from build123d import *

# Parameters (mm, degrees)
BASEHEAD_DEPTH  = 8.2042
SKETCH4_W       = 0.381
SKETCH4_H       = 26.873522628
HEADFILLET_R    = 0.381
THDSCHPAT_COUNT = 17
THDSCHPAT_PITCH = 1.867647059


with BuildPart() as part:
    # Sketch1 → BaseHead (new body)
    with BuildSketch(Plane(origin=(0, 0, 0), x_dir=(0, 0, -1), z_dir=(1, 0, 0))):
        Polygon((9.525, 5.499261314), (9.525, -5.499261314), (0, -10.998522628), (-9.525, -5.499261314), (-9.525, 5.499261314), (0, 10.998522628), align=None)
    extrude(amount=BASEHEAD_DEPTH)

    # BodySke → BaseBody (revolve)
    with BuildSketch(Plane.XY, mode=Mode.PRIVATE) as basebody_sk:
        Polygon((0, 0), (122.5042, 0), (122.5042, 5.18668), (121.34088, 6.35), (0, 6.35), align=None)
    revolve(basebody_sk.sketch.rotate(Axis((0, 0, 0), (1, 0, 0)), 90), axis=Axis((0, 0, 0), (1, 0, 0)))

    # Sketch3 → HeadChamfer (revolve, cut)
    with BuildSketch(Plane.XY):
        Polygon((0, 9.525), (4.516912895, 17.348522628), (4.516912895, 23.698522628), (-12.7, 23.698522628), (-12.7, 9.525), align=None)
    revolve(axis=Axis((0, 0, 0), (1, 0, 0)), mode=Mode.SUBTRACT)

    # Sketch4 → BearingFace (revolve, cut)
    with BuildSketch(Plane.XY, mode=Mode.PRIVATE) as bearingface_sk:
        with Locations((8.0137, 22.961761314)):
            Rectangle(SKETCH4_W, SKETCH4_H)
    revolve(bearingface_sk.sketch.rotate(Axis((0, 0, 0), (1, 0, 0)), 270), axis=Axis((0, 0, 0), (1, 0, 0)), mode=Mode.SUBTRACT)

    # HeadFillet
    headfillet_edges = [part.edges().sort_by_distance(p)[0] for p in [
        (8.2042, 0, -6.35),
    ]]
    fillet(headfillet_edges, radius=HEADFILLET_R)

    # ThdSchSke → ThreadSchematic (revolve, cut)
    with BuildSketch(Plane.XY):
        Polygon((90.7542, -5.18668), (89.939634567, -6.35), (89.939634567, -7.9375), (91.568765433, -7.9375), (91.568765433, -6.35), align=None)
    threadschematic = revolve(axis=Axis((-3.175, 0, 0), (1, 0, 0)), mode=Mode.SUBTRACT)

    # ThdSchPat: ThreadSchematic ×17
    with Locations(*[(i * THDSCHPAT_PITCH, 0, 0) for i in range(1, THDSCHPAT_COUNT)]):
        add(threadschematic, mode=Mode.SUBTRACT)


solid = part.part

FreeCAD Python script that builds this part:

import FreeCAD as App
import Part
import Sketcher
from FreeCAD import Vector
Q = App.Units.Quantity


def edges_at(feature, points):
    """Names of the edges that pass closest to the given points."""
    edges = feature.Shape.Edges
    near = lambda p: min(range(len(edges)), key=lambda i: edges[i].distToShape(Part.Vertex(*p))[0])
    return sorted({f"Edge{near(p) + 1}" for p in points})

doc = App.newDocument("Part")
body = doc.addObject("PartDesign::Body", "Body")

# Sketch on YZ plane
sketch1 = doc.addObject("Sketcher::SketchObject", "Sketch")
body.addObject(sketch1)
sketch1.AttachmentSupport = (doc.YZ_Plane, [""])
sketch1.MapMode = "FlatFace"
sketch1.addGeometry([
    Part.LineSegment(Vector(-5, -10, 0), Vector(5, -10, 0)),  # 0
    Part.LineSegment(Vector(5, -10, 0), Vector(11, 0, 0)),  # 1
    Part.LineSegment(Vector(11, 0, 0), Vector(5, 10, 0)),  # 2
    Part.LineSegment(Vector(5, 10, 0), Vector(-5, 10, 0)),  # 3
    Part.LineSegment(Vector(-5, 10, 0), Vector(-11, 0, 0)),  # 4
    Part.LineSegment(Vector(-11, 0, 0), Vector(-5, -10, 0)),  # 5
], False)
sketch1.addConstraint([
    Sketcher.Constraint("Coincident", 0, 2, 1, 1),
    Sketcher.Constraint("Coincident", 1, 2, 2, 1),
    Sketcher.Constraint("Coincident", 2, 2, 3, 1),
    Sketcher.Constraint("Coincident", 3, 2, 4, 1),
    Sketcher.Constraint("Coincident", 4, 2, 5, 1),
    Sketcher.Constraint("Coincident", 5, 2, 0, 1),
    Sketcher.Constraint("Horizontal", 0),
    Sketcher.Constraint("Horizontal", 3),
    Sketcher.Constraint("Symmetric", 0, 2, 3, 2, -1, 1),
    Sketcher.Constraint("Symmetric", 1, 2, 4, 2, -1, 1),
    Sketcher.Constraint("PointOnObject", 1, 2, -1),
    Sketcher.Constraint("Parallel", 2, 5),
    Sketcher.Constraint("Vertical", 0, 2, 2, 2),
    Sketcher.Constraint("Angle", 1, Q("60 deg")),
    Sketcher.Constraint("DistanceY", 0, 2, 2, 2, Q("0.75 in")),
    Sketcher.Constraint("DistanceX", 0, 1, 0, 2, 10.998523),
])
pad1 = doc.addObject("PartDesign::Pad", "Pad")
body.addObject(pad1)
pad1.Profile = sketch1
pad1.Length = Q("0.323 in")

# Sketch on XY plane
sketch2 = doc.addObject("Sketcher::SketchObject", "Sketch001")
body.addObject(sketch2)
sketch2.AttachmentSupport = (doc.XY_Plane, [""])
sketch2.MapMode = "FlatFace"
sketch2.addGeometry([
    Part.LineSegment(Vector(0, 0, 0), Vector(122.5, 0, 0)),  # 0
    Part.LineSegment(Vector(122.5, 0, 0), Vector(122.5, 5.2, 0)),  # 1
    Part.LineSegment(Vector(122.5, 5.2, 0), Vector(121.3, 6.3, 0)),  # 2
    Part.LineSegment(Vector(121.3, 6.3, 0), Vector(0, 6.3, 0)),  # 3
    Part.LineSegment(Vector(0, 6.3, 0), Vector(0, 0, 0)),  # 4
], False)
sketch2.addConstraint([
    Sketcher.Constraint("Coincident", 0, 2, 1, 1),
    Sketcher.Constraint("Coincident", 1, 2, 2, 1),
    Sketcher.Constraint("Coincident", 2, 2, 3, 1),
    Sketcher.Constraint("Coincident", 3, 2, 4, 1),
    Sketcher.Constraint("Coincident", 4, 2, 0, 1),
    Sketcher.Constraint("Horizontal", 0),
    Sketcher.Constraint("Vertical", 1),
    Sketcher.Constraint("Horizontal", 3),
    Sketcher.Constraint("Vertical", 4),
    Sketcher.Constraint("Coincident", 4, 2, -1, 1),
    Sketcher.Constraint("Angle", 2, Q("135 deg")),
    Sketcher.Constraint("DistanceY", 4, 2, 4, 1, Q("0.25 in")),
    Sketcher.Constraint("DistanceX", 0, 1, 0, 2, Q("4.823 in")),
    Sketcher.Constraint("DistanceX", 3, 2, 3, 1, Q("4.7772 in")),
])
revolution = doc.addObject("PartDesign::Revolution", "Revolution")
body.addObject(revolution)
revolution.Profile = sketch2
revolution.ReferenceAxis = (sketch2, ["H_Axis"])
revolution.Angle = 360

# Sketch on XY plane
sketch3 = doc.addObject("Sketcher::SketchObject", "Sketch002")
body.addObject(sketch3)
sketch3.AttachmentSupport = (doc.XY_Plane, [""])
sketch3.MapMode = "FlatFace"
sketch3.addGeometry([
    Part.LineSegment(Vector(0, 10, 0), Vector(5, 17, 0)),  # 0
    Part.LineSegment(Vector(5, 17, 0), Vector(5, 24, 0)),  # 1
    Part.LineSegment(Vector(5, 24, 0), Vector(-13, 24, 0)),  # 2
    Part.LineSegment(Vector(-13, 24, 0), Vector(-13, 10, 0)),  # 3
    Part.LineSegment(Vector(-13, 10, 0), Vector(0, 10, 0)),  # 4
], False)
sketch3.addConstraint([
    Sketcher.Constraint("Coincident", 0, 2, 1, 1),
    Sketcher.Constraint("Coincident", 1, 2, 2, 1),
    Sketcher.Constraint("Coincident", 2, 2, 3, 1),
    Sketcher.Constraint("Coincident", 3, 2, 4, 1),
    Sketcher.Constraint("Coincident", 4, 2, 0, 1),
    Sketcher.Constraint("Vertical", 1),
    Sketcher.Constraint("Horizontal", 2),
    Sketcher.Constraint("Vertical", 3),
    Sketcher.Constraint("Horizontal", 4),
    Sketcher.Constraint("PointOnObject", 4, 2, -2),
    Sketcher.Constraint("DistanceX", 4, 1, 4, 2, Q("0.5 in")),
    Sketcher.Constraint("Angle", 0, Q("60 deg")),
    Sketcher.Constraint("DistanceY", 1, 1, 1, 2, Q("0.25 in")),
    Sketcher.Constraint("DistanceY", -1, 1, 3, 2, Q("0.375 in")),
    Sketcher.Constraint("DistanceX", 2, 2, 2, 1, 17.216913),
])
groove = doc.addObject("PartDesign::Groove", "Groove")
body.addObject(groove)
groove.Profile = sketch3
groove.ReferenceAxis = (sketch3, ["H_Axis"])
groove.Angle = 360

# Sketch on XY plane
sketch4 = doc.addObject("Sketcher::SketchObject", "Sketch003")
body.addObject(sketch4)
sketch4.AttachmentSupport = (doc.XY_Plane, [""])
sketch4.MapMode = "FlatFace"
sketch4.addGeometry([
    Part.LineSegment(Vector(7.82, 36.4, 0), Vector(7.82, 9.53, 0)),
    Part.LineSegment(Vector(7.82, 9.53, 0), Vector(8.2, 9.53, 0)),
    Part.LineSegment(Vector(8.2, 9.53, 0), Vector(8.2, 36.4, 0)),
    Part.LineSegment(Vector(8.2, 36.4, 0), Vector(7.82, 36.4, 0)),
], False)
sketch4.addConstraint([
    Sketcher.Constraint("Coincident", 0, 2, 1, 1),
    Sketcher.Constraint("Coincident", 1, 2, 2, 1),
    Sketcher.Constraint("Coincident", 2, 2, 3, 1),
    Sketcher.Constraint("Coincident", 3, 2, 0, 1),
    Sketcher.Constraint("Vertical", 0),
    Sketcher.Constraint("Horizontal", 1),
    Sketcher.Constraint("Vertical", 2),
    Sketcher.Constraint("Horizontal", 3),
    Sketcher.Constraint("DistanceX", 1, 1, 1, 2, Q("0.015 in")),
    Sketcher.Constraint("DistanceX", -1, 1, 0, 2, Q("0.308 in")),
    Sketcher.Constraint("DistanceY", -1, 1, 0, 2, Q("0.375 in")),
    Sketcher.Constraint("DistanceY", 0, 2, 0, 1, 26.873523),
])
groove2 = doc.addObject("PartDesign::Groove", "Groove001")
body.addObject(groove2)
groove2.Profile = sketch4
groove2.ReferenceAxis = (sketch4, ["H_Axis"])
groove2.Angle = 360
doc.recompute()

fillet = doc.addObject("PartDesign::Fillet", "Fillet")
body.addObject(fillet)
fillet.Base = (groove2, edges_at(groove2, [(8.204, 0, -6.35)]))
fillet.Radius = Q("0.015 in")

# Sketch on XY plane
sketch5 = doc.addObject("Sketcher::SketchObject", "Sketch004")
body.addObject(sketch5)
sketch5.AttachmentSupport = (doc.XY_Plane, [""])
sketch5.MapMode = "FlatFace"
sketch5.addGeometry([
    Part.LineSegment(Vector(90.8, -5.2, 0), Vector(89.9, -6.3, 0)),  # 0
    Part.LineSegment(Vector(89.9, -6.3, 0), Vector(89.9, -7.9, 0)),  # 1
    Part.LineSegment(Vector(89.9, -7.9, 0), Vector(91.6, -7.9, 0)),  # 2
    Part.LineSegment(Vector(91.6, -7.9, 0), Vector(91.6, -6.3, 0)),  # 3
    Part.LineSegment(Vector(91.6, -6.3, 0), Vector(90.8, -5.2, 0)),  # 4
], False)
sketch5.addConstraint([
    Sketcher.Constraint("Coincident", 0, 2, 1, 1),
    Sketcher.Constraint("Coincident", 1, 2, 2, 1),
    Sketcher.Constraint("Coincident", 2, 2, 3, 1),
    Sketcher.Constraint("Coincident", 3, 2, 4, 1),
    Sketcher.Constraint("Coincident", 4, 2, 0, 1),
    Sketcher.Constraint("Vertical", 1),
    Sketcher.Constraint("Horizontal", 2),
    Sketcher.Constraint("Vertical", 3),
    Sketcher.Constraint("Horizontal", 0, 2, 3, 2),
    Sketcher.Constraint("Equal", 0, 4),
    Sketcher.Constraint("Angle", 0, Q("-125 deg")),
    Sketcher.Constraint("DistanceY", 1, 2, 1, 1, Q("0.0625 in")),
    Sketcher.Constraint("DistanceY", 0, 2, -1, 1, Q("0.25 in")),
    Sketcher.Constraint("DistanceX", -1, 1, 4, 2, Q("3.573 in")),
    Sketcher.Constraint("DistanceY", 4, 2, -1, 1, Q("0.2042 in")),
])
groove3 = doc.addObject("PartDesign::Groove", "Groove002")
body.addObject(groove3)
groove3.Profile = sketch5
groove3.ReferenceAxis = (sketch5, ["H_Axis"])
groove3.Angle = 360
doc.recompute()

linearpattern = doc.addObject("PartDesign::LinearPattern", "LinearPattern")
body.addObject(linearpattern)
linearpattern.Originals = [groove3]
linearpattern.Direction = (doc.X_Axis, [""])
linearpattern.Mode = "offset"
linearpattern.Offset = 1.867647
linearpattern.Occurrences = 17
body.Tip = linearpattern

doc.recompute()
